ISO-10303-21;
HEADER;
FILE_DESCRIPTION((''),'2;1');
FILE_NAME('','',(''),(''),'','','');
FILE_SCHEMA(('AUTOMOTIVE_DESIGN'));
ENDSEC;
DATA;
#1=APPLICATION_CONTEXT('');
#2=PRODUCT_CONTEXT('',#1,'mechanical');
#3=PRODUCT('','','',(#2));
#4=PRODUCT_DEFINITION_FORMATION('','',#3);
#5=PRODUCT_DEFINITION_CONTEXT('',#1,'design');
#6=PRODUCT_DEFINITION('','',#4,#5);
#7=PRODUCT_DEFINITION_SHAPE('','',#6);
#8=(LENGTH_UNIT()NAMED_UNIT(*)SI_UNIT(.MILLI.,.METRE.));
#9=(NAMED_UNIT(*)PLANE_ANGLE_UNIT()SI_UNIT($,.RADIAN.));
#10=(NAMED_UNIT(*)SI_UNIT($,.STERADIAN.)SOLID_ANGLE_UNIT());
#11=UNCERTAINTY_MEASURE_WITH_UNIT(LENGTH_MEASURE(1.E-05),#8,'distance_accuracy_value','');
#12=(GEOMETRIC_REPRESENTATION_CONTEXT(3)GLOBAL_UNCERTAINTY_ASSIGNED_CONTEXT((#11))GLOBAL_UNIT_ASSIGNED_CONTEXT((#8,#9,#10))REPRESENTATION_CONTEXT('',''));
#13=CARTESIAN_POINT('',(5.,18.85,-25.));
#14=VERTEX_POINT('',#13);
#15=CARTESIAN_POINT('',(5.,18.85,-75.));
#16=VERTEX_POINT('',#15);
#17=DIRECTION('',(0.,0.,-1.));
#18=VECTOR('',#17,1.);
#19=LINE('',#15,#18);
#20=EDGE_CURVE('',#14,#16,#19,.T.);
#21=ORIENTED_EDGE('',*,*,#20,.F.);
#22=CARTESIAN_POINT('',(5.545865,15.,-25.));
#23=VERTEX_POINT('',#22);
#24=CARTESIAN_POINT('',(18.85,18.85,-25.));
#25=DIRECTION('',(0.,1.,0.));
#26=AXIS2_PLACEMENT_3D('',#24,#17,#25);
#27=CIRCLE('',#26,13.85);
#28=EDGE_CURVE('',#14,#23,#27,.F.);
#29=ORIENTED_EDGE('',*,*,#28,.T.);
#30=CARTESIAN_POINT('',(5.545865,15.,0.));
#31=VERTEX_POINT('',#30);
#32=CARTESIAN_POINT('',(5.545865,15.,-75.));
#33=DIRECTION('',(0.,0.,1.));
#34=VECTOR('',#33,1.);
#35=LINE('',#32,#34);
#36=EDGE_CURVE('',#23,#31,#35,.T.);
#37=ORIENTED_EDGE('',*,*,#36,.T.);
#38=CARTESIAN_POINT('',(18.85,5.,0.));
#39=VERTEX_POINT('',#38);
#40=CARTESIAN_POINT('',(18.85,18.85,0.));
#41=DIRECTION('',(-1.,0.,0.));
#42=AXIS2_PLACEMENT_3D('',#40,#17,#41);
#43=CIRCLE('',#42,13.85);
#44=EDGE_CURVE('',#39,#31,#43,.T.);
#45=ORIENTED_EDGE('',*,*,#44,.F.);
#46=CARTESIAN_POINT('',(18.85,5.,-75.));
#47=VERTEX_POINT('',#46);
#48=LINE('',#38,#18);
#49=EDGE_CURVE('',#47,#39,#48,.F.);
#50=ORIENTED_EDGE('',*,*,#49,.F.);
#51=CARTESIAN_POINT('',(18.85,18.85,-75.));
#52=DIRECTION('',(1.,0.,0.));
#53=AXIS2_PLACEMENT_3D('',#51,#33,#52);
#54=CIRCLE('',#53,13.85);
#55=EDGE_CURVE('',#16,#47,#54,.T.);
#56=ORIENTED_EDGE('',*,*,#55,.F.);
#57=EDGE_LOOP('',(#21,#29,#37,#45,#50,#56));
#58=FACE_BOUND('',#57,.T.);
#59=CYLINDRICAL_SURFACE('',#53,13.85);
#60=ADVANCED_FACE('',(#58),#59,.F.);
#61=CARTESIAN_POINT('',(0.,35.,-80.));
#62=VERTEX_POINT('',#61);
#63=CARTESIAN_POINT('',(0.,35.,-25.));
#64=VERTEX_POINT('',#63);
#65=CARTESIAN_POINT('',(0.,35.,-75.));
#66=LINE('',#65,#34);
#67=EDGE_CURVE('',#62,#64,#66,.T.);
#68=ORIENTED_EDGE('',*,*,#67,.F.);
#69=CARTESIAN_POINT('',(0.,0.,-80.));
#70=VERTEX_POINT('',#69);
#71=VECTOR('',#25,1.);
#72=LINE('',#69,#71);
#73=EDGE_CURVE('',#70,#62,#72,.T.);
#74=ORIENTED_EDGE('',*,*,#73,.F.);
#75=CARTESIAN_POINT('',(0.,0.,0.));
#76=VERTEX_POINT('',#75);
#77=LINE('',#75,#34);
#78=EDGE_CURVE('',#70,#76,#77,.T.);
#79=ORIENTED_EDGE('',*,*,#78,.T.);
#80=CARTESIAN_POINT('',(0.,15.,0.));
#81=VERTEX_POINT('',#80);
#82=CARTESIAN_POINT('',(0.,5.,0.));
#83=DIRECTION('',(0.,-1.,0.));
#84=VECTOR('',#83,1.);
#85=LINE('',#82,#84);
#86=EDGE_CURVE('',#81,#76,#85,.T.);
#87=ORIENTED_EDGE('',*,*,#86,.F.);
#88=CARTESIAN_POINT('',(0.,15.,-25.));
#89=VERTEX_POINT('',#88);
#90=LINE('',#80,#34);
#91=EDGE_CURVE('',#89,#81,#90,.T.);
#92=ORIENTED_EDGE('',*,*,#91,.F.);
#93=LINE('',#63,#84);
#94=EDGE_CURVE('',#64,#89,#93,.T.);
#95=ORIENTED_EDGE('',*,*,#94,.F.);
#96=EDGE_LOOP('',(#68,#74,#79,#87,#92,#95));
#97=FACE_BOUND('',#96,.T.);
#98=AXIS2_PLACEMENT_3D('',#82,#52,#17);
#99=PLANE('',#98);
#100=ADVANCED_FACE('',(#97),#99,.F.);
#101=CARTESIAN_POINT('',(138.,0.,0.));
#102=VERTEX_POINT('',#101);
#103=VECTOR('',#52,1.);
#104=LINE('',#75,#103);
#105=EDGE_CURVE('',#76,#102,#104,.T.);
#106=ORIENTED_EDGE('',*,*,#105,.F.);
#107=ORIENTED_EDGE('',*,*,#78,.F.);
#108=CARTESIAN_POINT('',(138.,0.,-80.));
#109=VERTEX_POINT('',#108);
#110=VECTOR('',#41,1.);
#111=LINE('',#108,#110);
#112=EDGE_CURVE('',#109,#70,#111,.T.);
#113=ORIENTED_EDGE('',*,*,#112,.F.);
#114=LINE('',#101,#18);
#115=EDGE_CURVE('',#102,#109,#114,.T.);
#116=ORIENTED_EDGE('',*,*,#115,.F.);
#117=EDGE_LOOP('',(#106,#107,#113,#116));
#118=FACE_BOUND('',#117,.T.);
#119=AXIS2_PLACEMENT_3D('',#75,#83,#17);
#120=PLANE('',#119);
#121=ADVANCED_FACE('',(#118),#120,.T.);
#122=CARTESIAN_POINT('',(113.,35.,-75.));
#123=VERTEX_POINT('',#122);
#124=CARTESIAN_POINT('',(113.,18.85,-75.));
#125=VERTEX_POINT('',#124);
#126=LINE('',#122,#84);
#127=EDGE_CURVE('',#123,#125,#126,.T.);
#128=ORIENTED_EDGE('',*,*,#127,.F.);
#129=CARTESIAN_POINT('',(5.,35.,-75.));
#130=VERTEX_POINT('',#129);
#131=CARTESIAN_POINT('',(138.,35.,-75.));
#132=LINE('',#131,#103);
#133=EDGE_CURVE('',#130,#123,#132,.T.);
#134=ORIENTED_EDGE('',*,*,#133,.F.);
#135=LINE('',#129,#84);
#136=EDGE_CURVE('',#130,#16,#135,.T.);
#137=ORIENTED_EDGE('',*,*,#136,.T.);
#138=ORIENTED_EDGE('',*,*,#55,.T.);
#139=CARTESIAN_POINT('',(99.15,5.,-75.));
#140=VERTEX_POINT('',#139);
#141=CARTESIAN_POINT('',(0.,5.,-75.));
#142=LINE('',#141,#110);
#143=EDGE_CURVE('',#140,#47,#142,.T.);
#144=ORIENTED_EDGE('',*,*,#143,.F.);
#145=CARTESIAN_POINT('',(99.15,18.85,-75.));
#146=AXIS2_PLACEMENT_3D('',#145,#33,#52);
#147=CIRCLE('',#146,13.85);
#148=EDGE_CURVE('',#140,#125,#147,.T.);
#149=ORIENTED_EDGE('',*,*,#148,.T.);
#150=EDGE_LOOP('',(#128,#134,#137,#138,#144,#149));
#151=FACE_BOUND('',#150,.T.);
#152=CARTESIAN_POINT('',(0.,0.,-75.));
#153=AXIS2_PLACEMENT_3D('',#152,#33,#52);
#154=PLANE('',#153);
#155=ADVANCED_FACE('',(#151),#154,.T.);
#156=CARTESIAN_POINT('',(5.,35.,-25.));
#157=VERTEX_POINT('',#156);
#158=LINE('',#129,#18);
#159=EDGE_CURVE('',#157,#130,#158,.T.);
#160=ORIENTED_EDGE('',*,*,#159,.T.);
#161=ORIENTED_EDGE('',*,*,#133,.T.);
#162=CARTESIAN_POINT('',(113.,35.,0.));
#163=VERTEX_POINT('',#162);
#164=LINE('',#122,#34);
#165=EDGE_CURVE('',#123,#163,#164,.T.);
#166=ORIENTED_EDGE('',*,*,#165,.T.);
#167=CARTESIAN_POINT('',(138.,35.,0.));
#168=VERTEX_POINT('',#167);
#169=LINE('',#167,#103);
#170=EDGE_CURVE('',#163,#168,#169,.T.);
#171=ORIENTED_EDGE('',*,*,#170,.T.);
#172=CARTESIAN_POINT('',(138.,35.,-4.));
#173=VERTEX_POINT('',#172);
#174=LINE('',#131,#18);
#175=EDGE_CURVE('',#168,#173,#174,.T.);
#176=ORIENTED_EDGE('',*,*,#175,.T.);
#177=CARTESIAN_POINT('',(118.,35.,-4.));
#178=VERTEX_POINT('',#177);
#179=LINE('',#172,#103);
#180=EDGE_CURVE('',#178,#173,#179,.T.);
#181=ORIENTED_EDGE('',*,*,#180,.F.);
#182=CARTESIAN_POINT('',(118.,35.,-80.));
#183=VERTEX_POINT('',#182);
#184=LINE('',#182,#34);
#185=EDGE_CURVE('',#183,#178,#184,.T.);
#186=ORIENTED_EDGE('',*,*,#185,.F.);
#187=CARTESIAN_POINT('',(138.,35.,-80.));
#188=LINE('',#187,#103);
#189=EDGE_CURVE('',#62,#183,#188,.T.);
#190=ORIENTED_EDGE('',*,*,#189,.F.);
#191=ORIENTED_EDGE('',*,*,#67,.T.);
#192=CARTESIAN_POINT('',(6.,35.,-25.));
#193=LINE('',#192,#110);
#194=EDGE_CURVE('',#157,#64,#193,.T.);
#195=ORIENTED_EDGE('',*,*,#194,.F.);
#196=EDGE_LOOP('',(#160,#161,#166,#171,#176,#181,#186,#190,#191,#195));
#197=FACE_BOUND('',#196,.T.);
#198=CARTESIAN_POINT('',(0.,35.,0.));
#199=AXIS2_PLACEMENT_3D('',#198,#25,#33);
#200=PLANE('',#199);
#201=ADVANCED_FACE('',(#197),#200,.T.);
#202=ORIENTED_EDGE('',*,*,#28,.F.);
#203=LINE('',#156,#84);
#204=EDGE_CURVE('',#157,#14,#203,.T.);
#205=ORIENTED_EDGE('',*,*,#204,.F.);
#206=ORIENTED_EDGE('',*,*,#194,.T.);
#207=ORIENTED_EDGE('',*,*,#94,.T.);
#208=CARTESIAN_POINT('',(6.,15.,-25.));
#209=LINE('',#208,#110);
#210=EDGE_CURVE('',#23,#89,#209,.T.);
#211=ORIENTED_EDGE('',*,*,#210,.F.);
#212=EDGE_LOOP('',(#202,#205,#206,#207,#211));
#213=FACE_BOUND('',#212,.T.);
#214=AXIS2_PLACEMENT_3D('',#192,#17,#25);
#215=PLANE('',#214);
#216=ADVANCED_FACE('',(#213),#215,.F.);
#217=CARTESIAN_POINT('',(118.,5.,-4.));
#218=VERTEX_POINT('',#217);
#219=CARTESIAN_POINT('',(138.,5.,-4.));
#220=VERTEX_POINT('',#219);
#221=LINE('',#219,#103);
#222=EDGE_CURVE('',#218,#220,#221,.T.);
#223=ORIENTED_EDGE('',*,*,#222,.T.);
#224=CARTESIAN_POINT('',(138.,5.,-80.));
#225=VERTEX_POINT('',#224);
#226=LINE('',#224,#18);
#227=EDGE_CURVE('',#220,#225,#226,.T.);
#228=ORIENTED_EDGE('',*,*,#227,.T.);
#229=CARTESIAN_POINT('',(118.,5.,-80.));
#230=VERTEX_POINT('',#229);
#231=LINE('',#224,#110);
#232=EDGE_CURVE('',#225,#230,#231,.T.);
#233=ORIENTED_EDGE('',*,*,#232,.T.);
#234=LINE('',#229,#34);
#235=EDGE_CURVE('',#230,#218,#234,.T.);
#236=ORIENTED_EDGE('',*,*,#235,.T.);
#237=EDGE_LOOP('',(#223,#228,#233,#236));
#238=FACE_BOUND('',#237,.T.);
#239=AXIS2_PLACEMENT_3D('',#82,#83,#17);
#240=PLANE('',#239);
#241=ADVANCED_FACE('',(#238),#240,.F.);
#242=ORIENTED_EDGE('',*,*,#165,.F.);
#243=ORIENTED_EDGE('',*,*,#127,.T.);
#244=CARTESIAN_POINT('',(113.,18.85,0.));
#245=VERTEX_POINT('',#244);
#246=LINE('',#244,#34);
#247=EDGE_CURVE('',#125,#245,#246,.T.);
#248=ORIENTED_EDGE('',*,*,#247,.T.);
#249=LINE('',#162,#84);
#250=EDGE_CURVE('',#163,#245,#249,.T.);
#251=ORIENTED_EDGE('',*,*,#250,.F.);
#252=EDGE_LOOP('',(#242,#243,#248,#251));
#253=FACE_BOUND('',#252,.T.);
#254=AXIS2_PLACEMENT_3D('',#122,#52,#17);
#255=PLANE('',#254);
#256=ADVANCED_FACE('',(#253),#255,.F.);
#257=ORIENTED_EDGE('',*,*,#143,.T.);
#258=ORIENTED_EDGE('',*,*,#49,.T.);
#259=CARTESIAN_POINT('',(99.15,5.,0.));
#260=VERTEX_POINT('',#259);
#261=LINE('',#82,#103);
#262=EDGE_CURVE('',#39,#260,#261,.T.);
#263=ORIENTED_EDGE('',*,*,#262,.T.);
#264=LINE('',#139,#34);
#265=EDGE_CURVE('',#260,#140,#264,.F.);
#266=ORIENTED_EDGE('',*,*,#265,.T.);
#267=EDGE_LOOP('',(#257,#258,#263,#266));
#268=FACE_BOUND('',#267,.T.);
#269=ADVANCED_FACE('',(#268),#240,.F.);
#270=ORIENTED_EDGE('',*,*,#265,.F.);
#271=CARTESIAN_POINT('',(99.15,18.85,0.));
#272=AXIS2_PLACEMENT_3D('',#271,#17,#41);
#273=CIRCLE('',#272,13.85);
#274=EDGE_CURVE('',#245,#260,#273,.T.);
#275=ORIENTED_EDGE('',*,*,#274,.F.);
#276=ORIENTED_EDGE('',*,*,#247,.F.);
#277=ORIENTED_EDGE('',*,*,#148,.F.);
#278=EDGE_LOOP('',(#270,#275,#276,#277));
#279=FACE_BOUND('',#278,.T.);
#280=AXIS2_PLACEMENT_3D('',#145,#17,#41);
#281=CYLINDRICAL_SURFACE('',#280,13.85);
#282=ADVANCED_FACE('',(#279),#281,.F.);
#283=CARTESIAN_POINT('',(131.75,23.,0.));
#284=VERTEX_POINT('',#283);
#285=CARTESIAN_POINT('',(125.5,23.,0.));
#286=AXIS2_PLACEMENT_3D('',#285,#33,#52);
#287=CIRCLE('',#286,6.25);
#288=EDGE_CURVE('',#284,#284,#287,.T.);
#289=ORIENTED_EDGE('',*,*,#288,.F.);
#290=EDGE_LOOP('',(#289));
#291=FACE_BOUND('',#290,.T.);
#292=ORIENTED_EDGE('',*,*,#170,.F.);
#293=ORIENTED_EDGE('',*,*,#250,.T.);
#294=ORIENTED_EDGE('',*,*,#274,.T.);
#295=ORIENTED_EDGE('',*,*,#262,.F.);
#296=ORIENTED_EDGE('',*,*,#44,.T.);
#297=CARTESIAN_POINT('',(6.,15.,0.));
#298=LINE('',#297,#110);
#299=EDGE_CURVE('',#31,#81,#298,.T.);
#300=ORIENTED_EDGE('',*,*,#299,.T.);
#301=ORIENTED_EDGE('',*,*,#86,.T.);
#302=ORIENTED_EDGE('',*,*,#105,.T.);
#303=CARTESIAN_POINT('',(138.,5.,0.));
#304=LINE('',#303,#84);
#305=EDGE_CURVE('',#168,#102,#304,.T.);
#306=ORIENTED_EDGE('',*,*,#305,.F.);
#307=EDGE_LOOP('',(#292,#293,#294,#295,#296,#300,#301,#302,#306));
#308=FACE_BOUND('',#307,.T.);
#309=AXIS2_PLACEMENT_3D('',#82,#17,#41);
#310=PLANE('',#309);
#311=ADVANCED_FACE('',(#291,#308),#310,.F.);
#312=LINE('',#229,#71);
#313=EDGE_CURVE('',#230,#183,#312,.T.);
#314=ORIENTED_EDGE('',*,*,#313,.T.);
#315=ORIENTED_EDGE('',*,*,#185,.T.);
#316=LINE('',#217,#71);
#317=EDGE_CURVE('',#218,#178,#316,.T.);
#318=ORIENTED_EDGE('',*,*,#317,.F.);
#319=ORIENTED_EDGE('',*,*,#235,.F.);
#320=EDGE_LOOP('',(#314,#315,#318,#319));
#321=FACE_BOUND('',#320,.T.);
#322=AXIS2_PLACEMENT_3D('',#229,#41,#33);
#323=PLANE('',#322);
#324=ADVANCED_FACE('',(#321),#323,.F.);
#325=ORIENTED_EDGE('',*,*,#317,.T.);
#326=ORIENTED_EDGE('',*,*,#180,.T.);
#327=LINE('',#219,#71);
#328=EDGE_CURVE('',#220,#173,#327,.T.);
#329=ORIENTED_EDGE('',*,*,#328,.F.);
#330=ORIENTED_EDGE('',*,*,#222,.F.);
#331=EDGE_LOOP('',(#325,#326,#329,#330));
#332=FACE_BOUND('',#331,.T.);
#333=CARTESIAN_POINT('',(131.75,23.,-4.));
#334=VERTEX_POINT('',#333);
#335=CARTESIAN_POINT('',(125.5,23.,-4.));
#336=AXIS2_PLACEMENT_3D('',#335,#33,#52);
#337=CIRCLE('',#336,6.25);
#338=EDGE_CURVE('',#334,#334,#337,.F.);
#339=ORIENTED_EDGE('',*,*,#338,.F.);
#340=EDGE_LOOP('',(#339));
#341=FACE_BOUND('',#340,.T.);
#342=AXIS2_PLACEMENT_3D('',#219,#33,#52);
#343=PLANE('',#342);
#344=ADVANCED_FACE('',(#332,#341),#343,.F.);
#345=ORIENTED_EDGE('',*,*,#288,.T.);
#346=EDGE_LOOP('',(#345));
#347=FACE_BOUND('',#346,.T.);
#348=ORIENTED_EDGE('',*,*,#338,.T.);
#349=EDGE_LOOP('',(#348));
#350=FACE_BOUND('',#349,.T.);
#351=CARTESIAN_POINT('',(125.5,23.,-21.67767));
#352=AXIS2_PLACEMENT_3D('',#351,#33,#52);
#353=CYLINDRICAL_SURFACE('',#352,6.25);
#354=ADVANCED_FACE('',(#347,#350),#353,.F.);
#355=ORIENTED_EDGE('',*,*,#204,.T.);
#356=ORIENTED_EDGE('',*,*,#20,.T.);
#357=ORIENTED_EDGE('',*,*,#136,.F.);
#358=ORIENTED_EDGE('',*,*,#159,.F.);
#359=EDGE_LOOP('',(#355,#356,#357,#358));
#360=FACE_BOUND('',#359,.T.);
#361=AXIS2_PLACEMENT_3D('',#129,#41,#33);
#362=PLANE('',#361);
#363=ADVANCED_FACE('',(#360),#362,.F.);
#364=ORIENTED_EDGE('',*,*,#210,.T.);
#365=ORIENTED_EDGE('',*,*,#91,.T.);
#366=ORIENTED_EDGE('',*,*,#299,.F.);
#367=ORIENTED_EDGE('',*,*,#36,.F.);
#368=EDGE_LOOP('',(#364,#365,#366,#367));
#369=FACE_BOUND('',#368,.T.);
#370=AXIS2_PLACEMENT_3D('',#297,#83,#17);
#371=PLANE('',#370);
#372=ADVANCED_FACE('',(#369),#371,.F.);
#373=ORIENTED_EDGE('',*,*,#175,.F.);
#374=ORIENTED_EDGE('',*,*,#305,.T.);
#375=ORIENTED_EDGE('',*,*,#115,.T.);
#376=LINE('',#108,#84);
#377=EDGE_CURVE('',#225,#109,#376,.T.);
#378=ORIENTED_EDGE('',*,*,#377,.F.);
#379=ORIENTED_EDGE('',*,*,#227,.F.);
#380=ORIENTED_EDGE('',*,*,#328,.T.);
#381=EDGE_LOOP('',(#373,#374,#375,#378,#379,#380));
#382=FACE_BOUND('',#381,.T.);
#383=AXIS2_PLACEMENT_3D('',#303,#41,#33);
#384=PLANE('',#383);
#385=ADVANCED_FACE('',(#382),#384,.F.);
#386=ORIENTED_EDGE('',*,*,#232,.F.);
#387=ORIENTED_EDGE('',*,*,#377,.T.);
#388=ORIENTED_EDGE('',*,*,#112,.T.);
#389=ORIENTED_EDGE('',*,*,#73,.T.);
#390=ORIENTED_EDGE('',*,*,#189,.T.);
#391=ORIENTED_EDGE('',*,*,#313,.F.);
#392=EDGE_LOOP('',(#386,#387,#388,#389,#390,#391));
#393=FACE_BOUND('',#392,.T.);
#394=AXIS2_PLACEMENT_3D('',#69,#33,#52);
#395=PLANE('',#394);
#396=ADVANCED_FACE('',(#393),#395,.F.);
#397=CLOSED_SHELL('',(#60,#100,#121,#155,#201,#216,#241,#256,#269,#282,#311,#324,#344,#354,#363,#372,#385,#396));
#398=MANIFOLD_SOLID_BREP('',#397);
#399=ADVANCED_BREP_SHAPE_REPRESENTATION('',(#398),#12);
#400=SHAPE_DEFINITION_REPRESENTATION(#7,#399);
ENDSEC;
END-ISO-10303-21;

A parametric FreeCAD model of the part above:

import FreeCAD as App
import Part
import Sketcher
from FreeCAD import Vector


def edges_at(feature, points):
    """Names of the edges that pass closest to the given points."""
    edges = feature.Shape.Edges
    near = lambda p: min(range(len(edges)), key=lambda i: edges[i].distToShape(Part.Vertex(*p))[0])
    return sorted({f"Edge{near(p) + 1}" for p in points})

doc = App.newDocument("Part")
body = doc.addObject("PartDesign::Body", "Body")

# Sketch on XZ plane
sketch1 = body.newObject("Sketcher::SketchObject", "Sketch")
sketch1.AttachmentSupport = (doc.getObject("XZ_Plane"), [""])
sketch1.MapMode = "FlatFace"
sketch1.addGeometry([
    Part.LineSegment(Vector(0, -75, 0), Vector(0, 0, 0)),
    Part.LineSegment(Vector(0, 0, 0), Vector(138, 0, 0)),
    Part.LineSegment(Vector(138, 0, 0), Vector(138, -75, 0)),
    Part.LineSegment(Vector(138, -75, 0), Vector(0, -75, 0)),
], False)
sketch1.addConstraint([
    Sketcher.Constraint("Coincident", 0, 2, 1, 1),
    Sketcher.Constraint("Coincident", 1, 2, 2, 1),
    Sketcher.Constraint("Coincident", 2, 2, 3, 1),
    Sketcher.Constraint("Coincident", 3, 2, 0, 1),
    Sketcher.Constraint("Vertical", 0),
    Sketcher.Constraint("Horizontal", 1),
    Sketcher.Constraint("Vertical", 2),
    Sketcher.Constraint("Horizontal", 3),
    Sketcher.Constraint("Coincident", 0, 2, -1, 1),
    Sketcher.Constraint("DistanceX", 1, 1, 1, 2, 138.0),
    Sketcher.Constraint("DistanceY", 0, 1, 0, 2, 75.0),
])
pad1 = body.newObject("PartDesign::Pad", "Pad")
pad1.Profile = sketch1
pad1.Length = 5
pad1.Reversed = True

# Sketch on XZ plane
sketch2 = body.newObject("Sketcher::SketchObject", "Sketch001")
sketch2.AttachmentSupport = (doc.getObject("XZ_Plane"), [""])
sketch2.MapMode = "FlatFace"
sketch2.AttachmentOffset = App.Placement(Vector(0, 0, -5), App.Rotation())
sketch2.addGeometry([
    Part.LineSegment(Vector(0, -75, 0), Vector(0, 0, 0)),  # 0
    Part.LineSegment(Vector(0, 0, 0), Vector(5, 0, 0)),  # 1
    Part.LineSegment(Vector(5, 0, 0), Vector(5, -75, 0)),  # 2
    Part.LineSegment(Vector(5, -75, 0), Vector(0, -75, 0)),  # 3
    Part.LineSegment(Vector(113, -75, 0), Vector(113, 0, 0)),  # 4
    Part.LineSegment(Vector(113, 0, 0), Vector(138, 0, 0)),  # 5
    Part.LineSegment(Vector(138, 0, 0), Vector(138, -75, 0)),  # 6
    Part.LineSegment(Vector(138, -75, 0), Vector(113, -75, 0)),  # 7
], False)
sketch2.addConstraint([
    Sketcher.Constraint("Coincident", 0, 2, 1, 1),
    Sketcher.Constraint("Coincident", 1, 2, 2, 1),
    Sketcher.Constraint("Coincident", 2, 2, 3, 1),
    Sketcher.Constraint("Coincident", 3, 2, 0, 1),
    Sketcher.Constraint("Coincident", 4, 2, 5, 1),
    Sketcher.Constraint("Coincident", 5, 2, 6, 1),
    Sketcher.Constraint("Coincident", 6, 2, 7, 1),
    Sketcher.Constraint("Coincident", 7, 2, 4, 1),
    Sketcher.Constraint("Vertical", 0),
    Sketcher.Constraint("Horizontal", 1),
    Sketcher.Constraint("Vertical", 2),
    Sketcher.Constraint("Horizontal", 3),
    Sketcher.Constraint("Vertical", 4),
    Sketcher.Constraint("Horizontal", 5),
    Sketcher.Constraint("Vertical", 6),
    Sketcher.Constraint("Horizontal", 7),
    Sketcher.Constraint("Coincident", 0, 2, -1, 1),
    Sketcher.Constraint("PointOnObject", 4, 2, -1),
    Sketcher.Constraint("Horizontal", 3, 2, 6, 2),
    Sketcher.Constraint("DistanceX", 1, 1, 1, 2, 5.0),
    Sketcher.Constraint("DistanceX", 5, 1, 5, 2, 25.0),
    Sketcher.Constraint("DistanceY", 0, 1, 0, 2, 75.0),
    Sketcher.Constraint("DistanceX", -1, 1, 4, 2, 113.0),
])
pad2 = body.newObject("PartDesign::Pad", "Pad001")
pad2.Profile = sketch2
pad2.Length = 30
pad2.Reversed = True
doc.recompute()

fillet = body.newObject("PartDesign::Fillet", "Fillet")
fillet.Base = (pad2, edges_at(pad2, [(5, 5, -37.5), (113, 5, -37.5)]))
fillet.Radius = 13.85

# Sketch on XY plane
sketch3 = body.newObject("Sketcher::SketchObject", "Sketch002")
sketch3.AttachmentSupport = (doc.getObject("XY_Plane"), [""])
sketch3.MapMode = "FlatFace"
sketch3.AttachmentOffset = App.Placement(Vector(0, 0, -75), App.Rotation())
sketch3.addGeometry([
    Part.LineSegment(Vector(138, 35, 0), Vector(138, 0, 0)),
    Part.LineSegment(Vector(138, 0, 0), Vector(0, 0, 0)),
    Part.LineSegment(Vector(0, 0, 0), Vector(0, 35, 0)),
    Part.LineSegment(Vector(0, 35, 0), Vector(138, 35, 0)),
], False)
sketch3.addConstraint([
    Sketcher.Constraint("Coincident", 0, 2, 1, 1),
    Sketcher.Constraint("Coincident", 1, 2, 2, 1),
    Sketcher.Constraint("Coincident", 2, 2, 3, 1),
    Sketcher.Constraint("Coincident", 3, 2, 0, 1),
    Sketcher.Constraint("Vertical", 0),
    Sketcher.Constraint("Horizontal", 1),
    Sketcher.Constraint("Vertical", 2),
    Sketcher.Constraint("Horizontal", 3),
    Sketcher.Constraint("Coincident", 1, 2, -1, 1),
    Sketcher.Constraint("DistanceX", 1, 2, 1, 1, 138.0),
    Sketcher.Constraint("DistanceY", 0, 2, 0, 1, 35.0),
])
pad3 = body.newObject("PartDesign::Pad", "Pad002")
pad3.Profile = sketch3
pad3.Length = 5
pad3.Reversed = True

# Sketch on YZ plane
sketch4 = body.newObject("Sketcher::SketchObject", "Sketch003")
sketch4.AttachmentSupport = (doc.getObject("YZ_Plane"), [""])
sketch4.MapMode = "FlatFace"
sketch4.addGeometry([
    Part.LineSegment(Vector(35, -25, 0), Vector(15, -25, 0)),
    Part.LineSegment(Vector(15, -25, 0), Vector(15, 0, 0)),
    Part.LineSegment(Vector(15, 0, 0), Vector(35, 0, 0)),
    Part.LineSegment(Vector(35, 0, 0), Vector(35, -25, 0)),
], False)
sketch4.addConstraint([
    Sketcher.Constraint("Coincident", 0, 2, 1, 1),
    Sketcher.Constraint("Coincident", 1, 2, 2, 1),
    Sketcher.Constraint("Coincident", 2, 2, 3, 1),
    Sketcher.Constraint("Coincident", 3, 2, 0, 1),
    Sketcher.Constraint("Horizontal", 0),
    Sketcher.Constraint("Vertical", 1),
    Sketcher.Constraint("Horizontal", 2),
    Sketcher.Constraint("Vertical", 3),
    Sketcher.Constraint("PointOnObject", 1, 2, -1),
    Sketcher.Constraint("DistanceX", 0, 2, 0, 1, 20.0),
    Sketcher.Constraint("DistanceY", 1, 1, 1, 2, 25.0),
    Sketcher.Constraint("DistanceX", -1, 1, 0, 2, 15.0),
])
pocket1 = body.newObject("PartDesign::Pocket", "Pocket")
pocket1.Profile = sketch4
pocket1.Length = 6
pocket1.Reversed = True

# Sketch on XZ plane
sketch5 = body.newObject("Sketcher::SketchObject", "Sketch004")
sketch5.AttachmentSupport = (doc.getObject("XZ_Plane"), [""])
sketch5.MapMode = "FlatFace"
sketch5.AttachmentOffset = App.Placement(Vector(0, 0, -35), App.Rotation())
sketch5.addGeometry([
    Part.LineSegment(Vector(118, -80, 0), Vector(118, -4, 0)),
    Part.LineSegment(Vector(118, -4, 0), Vector(138, -4, 0)),
    Part.LineSegment(Vector(138, -4, 0), Vector(138, -80, 0)),
    Part.LineSegment(Vector(138, -80, 0), Vector(118, -80, 0)),
], False)
sketch5.addConstraint([
    Sketcher.Constraint("Coincident", 0, 2, 1, 1),
    Sketcher.Constraint("Coincident", 1, 2, 2, 1),
    Sketcher.Constraint("Coincident", 2, 2, 3, 1),
    Sketcher.Constraint("Coincident", 3, 2, 0, 1),
    Sketcher.Constraint("Vertical", 0),
    Sketcher.Constraint("Horizontal", 1),
    Sketcher.Constraint("Vertical", 2),
    Sketcher.Constraint("Horizontal", 3),
    Sketcher.Constraint("DistanceX", 1, 1, 1, 2, 20.0),
    Sketcher.Constraint("DistanceY", 0, 1, 0, 2, 76.0),
    Sketcher.Constraint("DistanceX", -1, 1, 0, 2, 118.0),
    Sketcher.Constraint("DistanceY", 0, 2, -1, 1, 4.0),
])
pocket2 = body.newObject("PartDesign::Pocket", "Pocket001")
pocket2.Profile = sketch5
pocket2.Length = 30
pocket2.Reversed = True

# Sketch on XY plane
sketch6 = body.newObject("Sketcher::SketchObject", "Sketch005")
sketch6.AttachmentSupport = (doc.getObject("XY_Plane"), [""])
sketch6.MapMode = "FlatFace"
sketch6.addGeometry(Part.Circle(Vector(126, 23, 0), Vector(0, 0, 1), 6), False)
sketch6.addConstraint([
    Sketcher.Constraint("Diameter", 0, 12.5),
    Sketcher.Constraint("DistanceY", -1, 1, 0, 3, 23.0),
    Sketcher.Constraint("DistanceX", -1, 1, 0, 3, 125.5),
])
pocket3 = body.newObject("PartDesign::Pocket", "Pocket002")
pocket3.Profile = sketch6
pocket3.Length = 4

doc.recompute()
